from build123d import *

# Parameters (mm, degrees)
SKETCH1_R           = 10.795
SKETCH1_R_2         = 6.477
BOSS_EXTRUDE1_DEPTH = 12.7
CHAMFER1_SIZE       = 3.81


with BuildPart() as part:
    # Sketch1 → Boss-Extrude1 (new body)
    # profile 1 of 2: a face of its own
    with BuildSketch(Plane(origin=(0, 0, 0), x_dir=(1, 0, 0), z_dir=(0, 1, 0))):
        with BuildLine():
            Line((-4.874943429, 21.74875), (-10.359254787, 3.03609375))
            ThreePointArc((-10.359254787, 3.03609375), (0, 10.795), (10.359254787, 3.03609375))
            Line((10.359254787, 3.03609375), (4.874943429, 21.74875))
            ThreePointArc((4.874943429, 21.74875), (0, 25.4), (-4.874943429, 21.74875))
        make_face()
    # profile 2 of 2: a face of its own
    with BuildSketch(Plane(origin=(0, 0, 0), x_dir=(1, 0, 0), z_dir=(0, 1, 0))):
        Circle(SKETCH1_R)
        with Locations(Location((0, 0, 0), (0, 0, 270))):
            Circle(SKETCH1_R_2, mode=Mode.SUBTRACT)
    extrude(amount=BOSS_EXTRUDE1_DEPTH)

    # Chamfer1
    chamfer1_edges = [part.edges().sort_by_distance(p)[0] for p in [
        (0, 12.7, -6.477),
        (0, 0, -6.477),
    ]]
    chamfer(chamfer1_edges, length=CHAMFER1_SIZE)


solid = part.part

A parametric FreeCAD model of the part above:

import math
import FreeCAD as App
import Part
import Sketcher

V = App.Vector
Q = App.Units.Quantity


def edges_at(feature, points):
    """Names of the edges that pass closest to the given points."""
    edges = feature.Shape.Edges
    near = lambda p: min(range(len(edges)), key=lambda i: edges[i].distToShape(Part.Vertex(*p))[0])
    return sorted({f"Edge{near(p) + 1}" for p in points})

doc = App.newDocument("Part")
body = doc.addObject("PartDesign::Body", "Body")

# Sketch on XZ plane
sketch1 = body.newObject("Sketcher::SketchObject", "Sketch")
sketch1.AttachmentSupport = (doc.getObject("XZ_Plane"), [""])
sketch1.MapMode = "FlatFace"
sketch1.addGeometry([
    Part.LineSegment(V(-5, -22, 0), V(-10, -3, 0)),  # 0
    Part.ArcOfCircle(Part.Circle(V(0, 0, 0), V(0, 0, 1), 11), math.radians(-16), math.radians(196)),  # 1
    Part.LineSegment(V(10, -3, 0), V(5, -22, 0)),  # 2
    Part.ArcOfCircle(Part.Circle(V(0, -20, 0), V(0, 0, 1), 5), math.radians(-164), math.radians(-16)),  # 3
    Part.Circle(V(0, 0, 0), V(0, 0, 1), 6),  # 4
], False)
sketch1.addConstraint([
    Sketcher.Constraint("Tangent", 0, 2, 1, 2),
    Sketcher.Constraint("Tangent", 1, 1, 2, 1),
    Sketcher.Constraint("Tangent", 2, 2, 3, 2),
    Sketcher.Constraint("Tangent", 3, 1, 0, 1),
    Sketcher.Constraint("Coincident", 1, 3, -1, 1),
    Sketcher.Constraint("Coincident", 4, 3, -1, 1),
    Sketcher.Constraint("PointOnObject", 3, 3, -2),
    Sketcher.Constraint("Radius", 3, Q("0.2 in")),
    Sketcher.Constraint("Diameter", 4, Q("0.51 in")),
    Sketcher.Constraint("Radius", 1, Q("0.425 in")),
    Sketcher.Constraint("DistanceY", 3, 3, -1, 1, Q("0.8 in")),
])
pad1 = body.newObject("PartDesign::Pad", "Pad")
pad1.Profile = sketch1
pad1.Length = Q("0.5 in")
pad1.Reversed = True
doc.recompute()

chamfer = body.newObject("PartDesign::Chamfer", "Chamfer")
chamfer.Base = (pad1, edges_at(pad1, [(0, 12.7, -6.477), (0, 0, -6.477)]))
chamfer.Size = Q("0.15 in")

doc.recompute()
